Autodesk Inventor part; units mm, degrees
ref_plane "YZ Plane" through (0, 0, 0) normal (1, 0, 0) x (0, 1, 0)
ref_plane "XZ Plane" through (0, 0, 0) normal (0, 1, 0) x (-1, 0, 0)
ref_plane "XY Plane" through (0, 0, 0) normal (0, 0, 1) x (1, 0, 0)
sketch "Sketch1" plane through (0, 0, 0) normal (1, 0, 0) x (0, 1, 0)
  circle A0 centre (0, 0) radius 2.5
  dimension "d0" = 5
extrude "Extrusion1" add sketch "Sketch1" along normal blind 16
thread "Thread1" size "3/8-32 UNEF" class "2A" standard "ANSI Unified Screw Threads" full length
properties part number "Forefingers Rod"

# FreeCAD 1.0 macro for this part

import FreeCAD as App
import Part
import Sketcher

doc = App.newDocument("Part")
body = doc.addObject("PartDesign::Body", "Body")

sketch1 = body.newObject("Sketcher::SketchObject", "Sketch")
sketch1.AttachmentSupport = (doc.getObject("YZ_Plane"), [""])
sketch1.MapMode = "FlatFace"
sketch1.addGeometry(Part.Circle(App.Vector(0, 0, 0), App.Vector(0, 0, 1), 2.5), False)
sketch1.addConstraint([
    Sketcher.Constraint("Coincident", 0, 3, -1, 1),
    Sketcher.Constraint("Diameter", 0, 5.0),
])
pad1 = body.newObject("PartDesign::Pad", "Pad")
pad1.Profile = sketch1
pad1.Length = 16

doc.recompute()
